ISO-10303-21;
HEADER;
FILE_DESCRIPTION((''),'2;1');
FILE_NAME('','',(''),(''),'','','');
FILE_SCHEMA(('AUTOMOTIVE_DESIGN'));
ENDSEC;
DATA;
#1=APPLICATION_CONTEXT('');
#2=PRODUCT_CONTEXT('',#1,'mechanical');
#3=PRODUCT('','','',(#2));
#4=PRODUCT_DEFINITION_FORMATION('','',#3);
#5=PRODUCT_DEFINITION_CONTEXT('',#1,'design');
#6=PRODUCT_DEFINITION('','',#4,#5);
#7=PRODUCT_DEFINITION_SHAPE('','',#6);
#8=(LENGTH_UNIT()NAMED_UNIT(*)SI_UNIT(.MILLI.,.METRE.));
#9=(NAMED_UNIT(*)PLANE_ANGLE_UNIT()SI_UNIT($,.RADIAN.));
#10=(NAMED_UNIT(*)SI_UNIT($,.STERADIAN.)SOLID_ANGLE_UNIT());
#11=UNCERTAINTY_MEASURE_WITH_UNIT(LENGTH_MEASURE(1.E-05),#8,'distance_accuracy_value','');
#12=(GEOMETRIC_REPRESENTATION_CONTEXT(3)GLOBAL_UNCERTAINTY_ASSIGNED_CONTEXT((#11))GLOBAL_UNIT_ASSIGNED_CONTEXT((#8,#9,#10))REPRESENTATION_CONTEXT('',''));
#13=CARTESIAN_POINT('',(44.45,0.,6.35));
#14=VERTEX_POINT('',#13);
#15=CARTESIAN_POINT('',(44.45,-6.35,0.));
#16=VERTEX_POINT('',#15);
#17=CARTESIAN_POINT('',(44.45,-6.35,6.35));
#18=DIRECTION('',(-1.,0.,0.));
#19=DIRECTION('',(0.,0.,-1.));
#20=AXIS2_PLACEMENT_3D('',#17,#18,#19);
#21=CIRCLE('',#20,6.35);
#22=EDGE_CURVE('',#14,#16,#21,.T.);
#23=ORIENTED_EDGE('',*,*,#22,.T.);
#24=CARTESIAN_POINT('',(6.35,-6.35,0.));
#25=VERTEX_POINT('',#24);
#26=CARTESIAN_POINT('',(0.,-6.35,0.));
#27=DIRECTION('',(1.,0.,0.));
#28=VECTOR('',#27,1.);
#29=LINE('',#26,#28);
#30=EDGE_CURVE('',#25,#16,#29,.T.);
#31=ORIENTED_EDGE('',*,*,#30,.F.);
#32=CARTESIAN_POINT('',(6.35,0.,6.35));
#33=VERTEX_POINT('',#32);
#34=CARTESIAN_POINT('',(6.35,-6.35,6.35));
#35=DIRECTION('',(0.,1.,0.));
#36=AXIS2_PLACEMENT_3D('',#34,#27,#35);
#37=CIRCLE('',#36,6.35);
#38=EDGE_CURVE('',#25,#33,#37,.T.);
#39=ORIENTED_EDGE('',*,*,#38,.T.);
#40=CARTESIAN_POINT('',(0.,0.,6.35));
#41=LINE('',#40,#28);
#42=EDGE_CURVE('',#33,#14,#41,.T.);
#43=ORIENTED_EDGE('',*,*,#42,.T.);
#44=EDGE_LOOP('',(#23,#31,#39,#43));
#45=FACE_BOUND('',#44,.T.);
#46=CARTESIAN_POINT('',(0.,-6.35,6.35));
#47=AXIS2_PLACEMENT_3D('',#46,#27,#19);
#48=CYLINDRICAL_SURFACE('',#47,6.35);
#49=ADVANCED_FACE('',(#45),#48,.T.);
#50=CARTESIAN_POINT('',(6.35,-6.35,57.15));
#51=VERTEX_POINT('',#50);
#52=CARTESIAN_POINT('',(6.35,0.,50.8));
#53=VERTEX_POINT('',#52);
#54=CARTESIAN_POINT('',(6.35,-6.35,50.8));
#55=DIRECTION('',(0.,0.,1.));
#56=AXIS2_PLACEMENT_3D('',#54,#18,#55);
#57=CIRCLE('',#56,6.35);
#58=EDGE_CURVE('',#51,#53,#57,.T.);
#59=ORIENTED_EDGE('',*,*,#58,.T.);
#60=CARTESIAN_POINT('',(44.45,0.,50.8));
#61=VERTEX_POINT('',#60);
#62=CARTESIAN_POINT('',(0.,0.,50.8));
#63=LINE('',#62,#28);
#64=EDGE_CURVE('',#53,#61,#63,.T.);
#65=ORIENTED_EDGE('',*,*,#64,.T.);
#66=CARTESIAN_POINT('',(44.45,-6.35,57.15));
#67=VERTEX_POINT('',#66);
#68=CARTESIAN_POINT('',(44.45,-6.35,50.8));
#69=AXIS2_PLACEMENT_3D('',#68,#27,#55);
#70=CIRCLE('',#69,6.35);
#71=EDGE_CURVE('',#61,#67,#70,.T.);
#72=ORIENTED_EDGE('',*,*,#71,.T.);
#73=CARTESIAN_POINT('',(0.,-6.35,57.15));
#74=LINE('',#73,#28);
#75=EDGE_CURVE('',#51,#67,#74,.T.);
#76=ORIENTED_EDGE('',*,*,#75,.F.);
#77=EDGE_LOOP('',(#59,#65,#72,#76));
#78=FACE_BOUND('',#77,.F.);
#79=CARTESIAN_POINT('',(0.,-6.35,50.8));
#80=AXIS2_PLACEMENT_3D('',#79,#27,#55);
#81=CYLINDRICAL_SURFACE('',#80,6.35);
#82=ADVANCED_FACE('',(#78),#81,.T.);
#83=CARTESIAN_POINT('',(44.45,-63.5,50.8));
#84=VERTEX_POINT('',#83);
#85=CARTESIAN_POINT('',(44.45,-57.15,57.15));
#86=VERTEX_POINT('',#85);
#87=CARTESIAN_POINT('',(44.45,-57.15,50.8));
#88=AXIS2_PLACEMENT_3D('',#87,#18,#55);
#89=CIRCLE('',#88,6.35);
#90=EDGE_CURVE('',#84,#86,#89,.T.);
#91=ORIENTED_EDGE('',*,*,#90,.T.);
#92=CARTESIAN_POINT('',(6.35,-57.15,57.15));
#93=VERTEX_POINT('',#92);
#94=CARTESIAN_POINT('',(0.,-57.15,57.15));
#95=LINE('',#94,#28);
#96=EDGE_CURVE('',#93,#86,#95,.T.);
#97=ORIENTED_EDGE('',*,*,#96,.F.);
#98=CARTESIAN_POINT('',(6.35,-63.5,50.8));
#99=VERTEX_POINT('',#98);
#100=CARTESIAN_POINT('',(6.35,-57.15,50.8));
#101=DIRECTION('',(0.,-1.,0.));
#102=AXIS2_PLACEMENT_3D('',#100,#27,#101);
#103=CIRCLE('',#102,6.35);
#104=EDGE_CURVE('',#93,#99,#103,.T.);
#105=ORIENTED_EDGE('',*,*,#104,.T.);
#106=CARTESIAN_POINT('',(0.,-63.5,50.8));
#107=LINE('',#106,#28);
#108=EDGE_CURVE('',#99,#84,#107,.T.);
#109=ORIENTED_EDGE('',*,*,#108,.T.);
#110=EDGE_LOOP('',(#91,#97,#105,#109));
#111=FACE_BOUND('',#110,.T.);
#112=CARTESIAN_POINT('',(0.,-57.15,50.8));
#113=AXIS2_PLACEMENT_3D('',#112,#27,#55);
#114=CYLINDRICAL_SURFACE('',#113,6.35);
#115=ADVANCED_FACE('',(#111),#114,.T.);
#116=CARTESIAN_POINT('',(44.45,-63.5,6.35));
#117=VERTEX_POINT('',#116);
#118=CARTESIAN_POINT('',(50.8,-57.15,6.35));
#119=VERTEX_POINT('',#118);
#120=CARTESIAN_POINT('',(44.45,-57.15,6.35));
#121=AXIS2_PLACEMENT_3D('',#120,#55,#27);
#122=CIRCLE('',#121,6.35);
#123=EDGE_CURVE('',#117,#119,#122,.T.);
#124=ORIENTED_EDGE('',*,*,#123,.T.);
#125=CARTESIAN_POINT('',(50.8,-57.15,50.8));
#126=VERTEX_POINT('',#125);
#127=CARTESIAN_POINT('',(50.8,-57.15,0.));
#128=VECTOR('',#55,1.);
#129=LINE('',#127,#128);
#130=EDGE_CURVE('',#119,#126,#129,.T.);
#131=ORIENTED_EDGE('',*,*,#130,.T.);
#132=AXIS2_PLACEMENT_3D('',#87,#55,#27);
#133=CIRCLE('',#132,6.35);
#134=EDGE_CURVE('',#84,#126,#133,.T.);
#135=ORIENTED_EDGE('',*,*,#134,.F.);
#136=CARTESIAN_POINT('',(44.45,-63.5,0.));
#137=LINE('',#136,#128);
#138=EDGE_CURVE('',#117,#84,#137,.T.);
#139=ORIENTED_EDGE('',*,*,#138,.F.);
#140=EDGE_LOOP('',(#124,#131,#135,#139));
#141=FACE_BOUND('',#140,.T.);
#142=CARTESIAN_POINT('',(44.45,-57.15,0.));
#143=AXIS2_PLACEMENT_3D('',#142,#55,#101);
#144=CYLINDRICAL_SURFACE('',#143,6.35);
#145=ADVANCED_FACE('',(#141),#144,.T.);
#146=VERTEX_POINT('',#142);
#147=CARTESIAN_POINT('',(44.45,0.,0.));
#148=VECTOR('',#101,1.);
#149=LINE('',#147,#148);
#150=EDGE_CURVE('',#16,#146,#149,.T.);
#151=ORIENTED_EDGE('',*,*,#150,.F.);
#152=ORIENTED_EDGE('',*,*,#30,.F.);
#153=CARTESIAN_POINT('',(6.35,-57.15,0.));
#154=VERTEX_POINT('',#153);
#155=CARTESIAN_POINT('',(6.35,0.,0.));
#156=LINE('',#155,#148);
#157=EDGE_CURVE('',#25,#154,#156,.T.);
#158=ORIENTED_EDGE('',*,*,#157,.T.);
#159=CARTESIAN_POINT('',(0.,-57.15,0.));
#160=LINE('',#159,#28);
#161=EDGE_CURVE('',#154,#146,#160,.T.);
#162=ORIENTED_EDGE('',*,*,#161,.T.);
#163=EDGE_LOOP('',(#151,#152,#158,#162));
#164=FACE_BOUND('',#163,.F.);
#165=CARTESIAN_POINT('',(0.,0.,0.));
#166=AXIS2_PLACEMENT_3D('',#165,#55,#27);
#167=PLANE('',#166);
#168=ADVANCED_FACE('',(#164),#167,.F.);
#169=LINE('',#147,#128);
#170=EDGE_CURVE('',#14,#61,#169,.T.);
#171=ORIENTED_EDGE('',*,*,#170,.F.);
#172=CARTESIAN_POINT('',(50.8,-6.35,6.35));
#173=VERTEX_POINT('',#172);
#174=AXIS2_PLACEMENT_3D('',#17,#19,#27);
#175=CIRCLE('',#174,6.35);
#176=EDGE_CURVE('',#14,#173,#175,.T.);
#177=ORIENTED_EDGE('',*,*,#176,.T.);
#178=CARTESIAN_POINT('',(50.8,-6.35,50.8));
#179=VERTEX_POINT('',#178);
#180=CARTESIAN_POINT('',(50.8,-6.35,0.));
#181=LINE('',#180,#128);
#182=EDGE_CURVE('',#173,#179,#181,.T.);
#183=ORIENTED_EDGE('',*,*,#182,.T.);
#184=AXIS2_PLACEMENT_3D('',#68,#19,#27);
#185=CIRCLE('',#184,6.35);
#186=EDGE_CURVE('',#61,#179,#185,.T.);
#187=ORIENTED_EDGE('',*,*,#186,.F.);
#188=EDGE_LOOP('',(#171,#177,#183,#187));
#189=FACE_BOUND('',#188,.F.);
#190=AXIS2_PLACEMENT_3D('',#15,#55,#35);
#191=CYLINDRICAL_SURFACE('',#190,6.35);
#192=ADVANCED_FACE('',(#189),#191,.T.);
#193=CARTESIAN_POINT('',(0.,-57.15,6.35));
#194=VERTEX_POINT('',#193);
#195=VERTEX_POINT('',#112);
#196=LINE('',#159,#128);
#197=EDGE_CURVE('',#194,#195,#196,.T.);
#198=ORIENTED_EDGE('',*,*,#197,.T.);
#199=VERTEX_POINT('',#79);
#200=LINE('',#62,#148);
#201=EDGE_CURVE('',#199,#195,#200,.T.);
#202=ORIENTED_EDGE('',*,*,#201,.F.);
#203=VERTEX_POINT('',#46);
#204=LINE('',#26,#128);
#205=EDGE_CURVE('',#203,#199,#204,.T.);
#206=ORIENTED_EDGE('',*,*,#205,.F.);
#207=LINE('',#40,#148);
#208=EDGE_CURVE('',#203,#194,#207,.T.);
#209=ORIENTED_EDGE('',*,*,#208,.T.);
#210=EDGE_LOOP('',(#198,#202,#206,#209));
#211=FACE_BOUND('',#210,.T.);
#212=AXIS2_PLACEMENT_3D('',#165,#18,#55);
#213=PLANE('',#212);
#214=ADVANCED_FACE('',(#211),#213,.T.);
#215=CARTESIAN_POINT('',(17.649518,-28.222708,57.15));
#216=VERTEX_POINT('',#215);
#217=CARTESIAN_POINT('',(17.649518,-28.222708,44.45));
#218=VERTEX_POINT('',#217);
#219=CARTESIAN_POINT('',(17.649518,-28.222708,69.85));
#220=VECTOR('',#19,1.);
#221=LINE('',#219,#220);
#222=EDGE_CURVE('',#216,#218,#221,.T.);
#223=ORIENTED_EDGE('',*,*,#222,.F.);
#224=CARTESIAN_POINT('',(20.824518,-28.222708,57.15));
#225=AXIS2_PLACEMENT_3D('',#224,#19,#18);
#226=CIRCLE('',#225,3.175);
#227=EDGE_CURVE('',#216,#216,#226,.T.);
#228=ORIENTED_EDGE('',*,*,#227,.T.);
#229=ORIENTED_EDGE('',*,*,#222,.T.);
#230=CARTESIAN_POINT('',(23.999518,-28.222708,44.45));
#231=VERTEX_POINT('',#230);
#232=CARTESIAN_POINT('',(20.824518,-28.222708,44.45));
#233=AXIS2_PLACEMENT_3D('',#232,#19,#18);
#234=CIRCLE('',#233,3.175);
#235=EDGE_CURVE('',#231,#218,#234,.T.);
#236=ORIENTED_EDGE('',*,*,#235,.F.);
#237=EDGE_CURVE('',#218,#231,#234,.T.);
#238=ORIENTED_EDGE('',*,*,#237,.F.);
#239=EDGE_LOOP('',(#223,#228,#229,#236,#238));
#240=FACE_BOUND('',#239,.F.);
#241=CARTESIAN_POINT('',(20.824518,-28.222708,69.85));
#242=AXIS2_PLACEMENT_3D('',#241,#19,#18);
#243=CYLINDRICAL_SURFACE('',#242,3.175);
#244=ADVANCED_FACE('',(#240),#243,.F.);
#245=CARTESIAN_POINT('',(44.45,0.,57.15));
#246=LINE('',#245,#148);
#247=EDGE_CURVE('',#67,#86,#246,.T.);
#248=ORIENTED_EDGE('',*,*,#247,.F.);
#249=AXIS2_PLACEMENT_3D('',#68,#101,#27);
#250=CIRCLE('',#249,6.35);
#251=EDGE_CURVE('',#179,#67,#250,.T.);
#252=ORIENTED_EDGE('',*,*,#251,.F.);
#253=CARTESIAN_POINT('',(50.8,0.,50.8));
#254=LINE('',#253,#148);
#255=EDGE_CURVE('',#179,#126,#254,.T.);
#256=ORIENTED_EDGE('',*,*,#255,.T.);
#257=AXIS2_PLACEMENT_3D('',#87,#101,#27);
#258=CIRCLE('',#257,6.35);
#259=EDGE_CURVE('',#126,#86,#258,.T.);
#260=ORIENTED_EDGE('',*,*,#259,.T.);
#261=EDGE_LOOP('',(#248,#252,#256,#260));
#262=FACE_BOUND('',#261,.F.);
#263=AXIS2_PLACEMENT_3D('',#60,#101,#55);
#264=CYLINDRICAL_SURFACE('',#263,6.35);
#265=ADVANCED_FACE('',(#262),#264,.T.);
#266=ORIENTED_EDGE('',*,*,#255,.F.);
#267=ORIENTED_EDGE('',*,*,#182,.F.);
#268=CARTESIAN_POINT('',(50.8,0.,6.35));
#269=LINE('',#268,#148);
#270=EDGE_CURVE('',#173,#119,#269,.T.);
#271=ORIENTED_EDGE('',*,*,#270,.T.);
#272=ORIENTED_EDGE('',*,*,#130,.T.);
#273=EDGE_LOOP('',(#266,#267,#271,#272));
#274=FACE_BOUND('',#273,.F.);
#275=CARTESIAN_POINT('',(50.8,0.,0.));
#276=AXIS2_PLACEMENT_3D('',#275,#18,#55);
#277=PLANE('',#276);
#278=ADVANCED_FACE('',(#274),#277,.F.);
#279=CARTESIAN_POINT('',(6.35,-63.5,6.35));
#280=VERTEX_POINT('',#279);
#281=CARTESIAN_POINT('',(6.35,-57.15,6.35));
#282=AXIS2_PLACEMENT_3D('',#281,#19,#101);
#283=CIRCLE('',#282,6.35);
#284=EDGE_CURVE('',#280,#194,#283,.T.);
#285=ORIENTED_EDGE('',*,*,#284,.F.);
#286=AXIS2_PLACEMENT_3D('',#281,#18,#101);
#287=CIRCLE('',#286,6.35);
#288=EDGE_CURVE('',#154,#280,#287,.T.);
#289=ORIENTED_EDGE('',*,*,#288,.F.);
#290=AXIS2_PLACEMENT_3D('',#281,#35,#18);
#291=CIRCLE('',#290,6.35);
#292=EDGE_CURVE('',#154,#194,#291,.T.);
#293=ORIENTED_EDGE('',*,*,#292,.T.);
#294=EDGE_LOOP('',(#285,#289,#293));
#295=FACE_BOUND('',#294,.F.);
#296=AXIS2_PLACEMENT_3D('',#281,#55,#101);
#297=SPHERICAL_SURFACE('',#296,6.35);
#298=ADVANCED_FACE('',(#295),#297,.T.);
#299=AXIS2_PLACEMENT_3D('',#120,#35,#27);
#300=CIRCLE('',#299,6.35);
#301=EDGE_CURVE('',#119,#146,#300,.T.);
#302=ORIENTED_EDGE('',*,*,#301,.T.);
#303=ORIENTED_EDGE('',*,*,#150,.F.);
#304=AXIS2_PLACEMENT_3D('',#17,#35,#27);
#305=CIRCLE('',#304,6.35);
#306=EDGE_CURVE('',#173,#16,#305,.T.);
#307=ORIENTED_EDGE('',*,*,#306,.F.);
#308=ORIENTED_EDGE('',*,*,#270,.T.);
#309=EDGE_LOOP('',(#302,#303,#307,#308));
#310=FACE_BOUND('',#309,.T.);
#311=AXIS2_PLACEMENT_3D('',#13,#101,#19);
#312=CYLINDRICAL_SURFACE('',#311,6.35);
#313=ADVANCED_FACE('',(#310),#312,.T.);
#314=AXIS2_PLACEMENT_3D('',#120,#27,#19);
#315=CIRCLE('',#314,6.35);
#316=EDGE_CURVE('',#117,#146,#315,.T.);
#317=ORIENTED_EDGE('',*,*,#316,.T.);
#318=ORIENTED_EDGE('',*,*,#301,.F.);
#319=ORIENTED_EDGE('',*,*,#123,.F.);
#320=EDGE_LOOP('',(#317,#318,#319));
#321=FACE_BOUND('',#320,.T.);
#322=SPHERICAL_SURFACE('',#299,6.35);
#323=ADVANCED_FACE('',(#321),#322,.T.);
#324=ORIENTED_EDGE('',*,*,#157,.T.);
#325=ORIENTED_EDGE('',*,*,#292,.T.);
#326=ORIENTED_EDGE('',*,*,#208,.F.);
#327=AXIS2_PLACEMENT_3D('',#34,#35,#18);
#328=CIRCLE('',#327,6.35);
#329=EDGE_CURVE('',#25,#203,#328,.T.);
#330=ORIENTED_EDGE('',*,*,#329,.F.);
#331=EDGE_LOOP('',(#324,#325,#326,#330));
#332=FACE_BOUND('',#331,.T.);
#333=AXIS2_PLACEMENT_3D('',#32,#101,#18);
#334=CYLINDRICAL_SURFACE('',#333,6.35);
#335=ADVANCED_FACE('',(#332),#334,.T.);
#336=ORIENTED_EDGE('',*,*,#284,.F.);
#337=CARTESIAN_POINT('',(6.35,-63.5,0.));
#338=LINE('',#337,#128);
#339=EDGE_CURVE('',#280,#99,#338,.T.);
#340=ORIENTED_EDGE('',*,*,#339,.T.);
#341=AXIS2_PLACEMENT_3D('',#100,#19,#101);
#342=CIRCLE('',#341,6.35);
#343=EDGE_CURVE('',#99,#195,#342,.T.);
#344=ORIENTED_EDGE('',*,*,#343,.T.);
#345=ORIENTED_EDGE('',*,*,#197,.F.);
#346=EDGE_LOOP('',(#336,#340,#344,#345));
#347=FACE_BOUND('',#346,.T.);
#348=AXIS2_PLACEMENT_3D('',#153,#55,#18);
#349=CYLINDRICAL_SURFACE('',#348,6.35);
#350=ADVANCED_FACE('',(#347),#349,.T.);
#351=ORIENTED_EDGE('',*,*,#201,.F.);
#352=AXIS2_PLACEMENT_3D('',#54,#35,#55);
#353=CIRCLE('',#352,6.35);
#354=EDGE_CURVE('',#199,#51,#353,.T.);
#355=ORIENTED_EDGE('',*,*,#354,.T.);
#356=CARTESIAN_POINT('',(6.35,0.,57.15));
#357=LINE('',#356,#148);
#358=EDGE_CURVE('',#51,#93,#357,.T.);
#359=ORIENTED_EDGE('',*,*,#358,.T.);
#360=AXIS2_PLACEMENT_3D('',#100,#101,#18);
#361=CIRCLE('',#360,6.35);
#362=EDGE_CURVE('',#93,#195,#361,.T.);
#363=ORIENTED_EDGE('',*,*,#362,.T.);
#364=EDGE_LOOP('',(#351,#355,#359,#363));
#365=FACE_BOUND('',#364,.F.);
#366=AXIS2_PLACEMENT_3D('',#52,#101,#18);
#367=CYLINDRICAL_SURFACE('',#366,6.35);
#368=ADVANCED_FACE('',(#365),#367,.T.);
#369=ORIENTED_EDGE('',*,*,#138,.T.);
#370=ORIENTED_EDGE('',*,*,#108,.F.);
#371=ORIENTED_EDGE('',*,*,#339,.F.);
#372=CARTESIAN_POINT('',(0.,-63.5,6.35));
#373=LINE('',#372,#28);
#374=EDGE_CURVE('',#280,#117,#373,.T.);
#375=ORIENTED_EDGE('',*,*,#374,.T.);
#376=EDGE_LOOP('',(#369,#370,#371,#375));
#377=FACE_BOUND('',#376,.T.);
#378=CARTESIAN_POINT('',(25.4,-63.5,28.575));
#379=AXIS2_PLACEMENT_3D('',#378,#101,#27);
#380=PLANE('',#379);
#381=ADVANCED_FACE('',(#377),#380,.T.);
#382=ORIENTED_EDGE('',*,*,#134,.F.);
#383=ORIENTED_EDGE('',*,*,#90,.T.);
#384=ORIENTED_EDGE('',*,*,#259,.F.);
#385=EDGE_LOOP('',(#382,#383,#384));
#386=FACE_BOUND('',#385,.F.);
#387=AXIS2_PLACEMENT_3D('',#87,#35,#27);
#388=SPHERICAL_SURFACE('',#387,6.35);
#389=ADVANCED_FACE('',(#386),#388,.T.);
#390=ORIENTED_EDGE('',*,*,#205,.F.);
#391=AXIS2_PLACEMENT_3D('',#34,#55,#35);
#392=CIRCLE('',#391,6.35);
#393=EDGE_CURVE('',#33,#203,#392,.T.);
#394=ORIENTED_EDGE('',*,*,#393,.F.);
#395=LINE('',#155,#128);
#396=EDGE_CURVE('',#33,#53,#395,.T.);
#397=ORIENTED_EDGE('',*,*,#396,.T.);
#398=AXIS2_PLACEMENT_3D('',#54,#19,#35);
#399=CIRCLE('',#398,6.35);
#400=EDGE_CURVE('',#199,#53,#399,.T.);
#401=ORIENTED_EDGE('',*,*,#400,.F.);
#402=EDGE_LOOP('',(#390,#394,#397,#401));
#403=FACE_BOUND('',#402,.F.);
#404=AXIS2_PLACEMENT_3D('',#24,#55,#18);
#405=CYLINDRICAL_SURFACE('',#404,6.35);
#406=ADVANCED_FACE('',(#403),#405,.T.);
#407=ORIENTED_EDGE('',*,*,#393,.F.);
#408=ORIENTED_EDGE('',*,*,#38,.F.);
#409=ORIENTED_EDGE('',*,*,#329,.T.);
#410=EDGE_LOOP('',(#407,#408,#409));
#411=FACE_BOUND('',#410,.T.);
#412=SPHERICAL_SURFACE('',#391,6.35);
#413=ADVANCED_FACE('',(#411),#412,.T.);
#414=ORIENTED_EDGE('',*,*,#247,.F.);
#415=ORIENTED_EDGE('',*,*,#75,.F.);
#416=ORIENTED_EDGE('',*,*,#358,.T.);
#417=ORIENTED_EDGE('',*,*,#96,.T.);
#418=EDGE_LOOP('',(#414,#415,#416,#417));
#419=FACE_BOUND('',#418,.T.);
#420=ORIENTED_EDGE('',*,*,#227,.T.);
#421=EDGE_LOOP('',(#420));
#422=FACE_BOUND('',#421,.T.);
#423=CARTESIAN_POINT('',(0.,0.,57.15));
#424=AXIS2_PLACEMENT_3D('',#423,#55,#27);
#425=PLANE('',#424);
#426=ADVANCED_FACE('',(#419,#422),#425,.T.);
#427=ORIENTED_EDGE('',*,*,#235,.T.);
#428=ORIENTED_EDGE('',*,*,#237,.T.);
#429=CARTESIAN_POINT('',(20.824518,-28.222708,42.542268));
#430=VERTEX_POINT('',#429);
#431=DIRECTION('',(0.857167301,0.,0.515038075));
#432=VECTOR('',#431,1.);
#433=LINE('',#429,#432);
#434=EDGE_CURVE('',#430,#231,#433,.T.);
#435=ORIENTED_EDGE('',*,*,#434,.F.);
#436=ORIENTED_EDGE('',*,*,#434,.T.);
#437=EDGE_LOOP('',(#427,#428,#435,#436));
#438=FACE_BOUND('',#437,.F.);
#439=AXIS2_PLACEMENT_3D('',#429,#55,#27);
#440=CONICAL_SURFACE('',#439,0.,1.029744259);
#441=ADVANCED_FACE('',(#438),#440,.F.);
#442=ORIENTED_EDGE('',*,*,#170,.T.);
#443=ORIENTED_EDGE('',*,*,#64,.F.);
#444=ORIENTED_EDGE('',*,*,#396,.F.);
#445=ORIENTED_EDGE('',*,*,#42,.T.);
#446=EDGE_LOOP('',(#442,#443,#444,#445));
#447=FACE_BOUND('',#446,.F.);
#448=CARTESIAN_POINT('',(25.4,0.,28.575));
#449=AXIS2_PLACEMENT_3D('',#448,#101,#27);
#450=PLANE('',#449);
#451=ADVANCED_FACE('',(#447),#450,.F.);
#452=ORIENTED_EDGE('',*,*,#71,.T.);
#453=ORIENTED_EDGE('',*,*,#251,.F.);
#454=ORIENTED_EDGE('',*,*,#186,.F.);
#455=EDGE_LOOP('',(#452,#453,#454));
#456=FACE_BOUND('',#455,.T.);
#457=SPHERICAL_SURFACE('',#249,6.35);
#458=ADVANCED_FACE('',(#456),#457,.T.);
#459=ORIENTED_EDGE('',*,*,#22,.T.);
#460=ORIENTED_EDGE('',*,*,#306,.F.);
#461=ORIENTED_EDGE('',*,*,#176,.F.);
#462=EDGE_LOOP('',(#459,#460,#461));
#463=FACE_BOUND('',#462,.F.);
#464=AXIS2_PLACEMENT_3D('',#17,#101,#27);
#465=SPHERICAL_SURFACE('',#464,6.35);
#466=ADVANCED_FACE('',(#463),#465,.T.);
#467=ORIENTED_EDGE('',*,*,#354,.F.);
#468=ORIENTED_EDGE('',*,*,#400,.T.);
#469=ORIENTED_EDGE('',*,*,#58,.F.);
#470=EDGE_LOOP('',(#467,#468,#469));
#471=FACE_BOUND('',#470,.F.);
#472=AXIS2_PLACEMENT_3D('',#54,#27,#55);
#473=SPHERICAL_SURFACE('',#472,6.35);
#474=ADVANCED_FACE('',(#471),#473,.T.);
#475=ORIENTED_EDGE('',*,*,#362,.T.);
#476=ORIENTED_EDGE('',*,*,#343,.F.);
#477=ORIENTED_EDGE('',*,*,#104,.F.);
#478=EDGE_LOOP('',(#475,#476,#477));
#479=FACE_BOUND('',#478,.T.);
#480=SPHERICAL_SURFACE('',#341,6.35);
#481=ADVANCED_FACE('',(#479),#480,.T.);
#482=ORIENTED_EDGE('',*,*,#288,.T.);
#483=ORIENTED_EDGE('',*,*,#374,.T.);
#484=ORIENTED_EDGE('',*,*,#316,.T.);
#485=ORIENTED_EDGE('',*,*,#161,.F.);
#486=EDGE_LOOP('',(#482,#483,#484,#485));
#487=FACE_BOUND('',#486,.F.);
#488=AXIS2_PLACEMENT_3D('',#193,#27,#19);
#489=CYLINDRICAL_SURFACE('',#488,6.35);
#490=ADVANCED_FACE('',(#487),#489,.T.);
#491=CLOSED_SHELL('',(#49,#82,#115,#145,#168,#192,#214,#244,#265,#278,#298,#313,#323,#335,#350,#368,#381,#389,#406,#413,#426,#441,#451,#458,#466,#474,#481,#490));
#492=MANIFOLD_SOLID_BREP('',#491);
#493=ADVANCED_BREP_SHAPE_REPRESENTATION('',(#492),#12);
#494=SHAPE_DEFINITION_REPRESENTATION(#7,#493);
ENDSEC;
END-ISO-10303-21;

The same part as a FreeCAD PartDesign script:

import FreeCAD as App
import Part
import Sketcher
Q = App.Units.Quantity


def edges_at(feature, points):
    """Names of the edges that pass closest to the given points."""
    edges = feature.Shape.Edges
    near = lambda p: min(range(len(edges)), key=lambda i: edges[i].distToShape(Part.Vertex(*p))[0])
    return sorted({f"Edge{near(p) + 1}" for p in points})


def add_polygon(sketch, points):
    """Adds a closed chain of lines whose ends are joined by coincident constraints."""
    first, n = sketch.GeometryCount, len(points)
    for a, b in zip(points, points[1:] + points[:1]):
        sketch.addGeometry(Part.LineSegment(App.Vector(*a, 0), App.Vector(*b, 0)), False)
    for i in range(n):
        sketch.addConstraint(Sketcher.Constraint("Coincident", first + i, 2, first + (i + 1) % n, 1))

doc = App.newDocument("Part")
body = doc.addObject("PartDesign::Body", "Body")

sketch1 = body.newObject("Sketcher::SketchObject", "Sketch")
sketch1.AttachmentSupport = (doc.getObject("XZ_Plane"), [""])
sketch1.MapMode = "FlatFace"
add_polygon(sketch1, [(0, 57), (0, 0), (51, 0), (51, 57)])
sketch1.addConstraint([
    Sketcher.Constraint("Vertical", 0),
    Sketcher.Constraint("Horizontal", 1),
    Sketcher.Constraint("Vertical", 2),
    Sketcher.Constraint("Horizontal", 3),
    Sketcher.Constraint("Coincident", 0, 2, -1, 1),
    Sketcher.Constraint("DistanceX", 1, 1, 1, 2, Q("2 in")),
    Sketcher.Constraint("DistanceY", 0, 2, 0, 1, Q("2.25 in")),
])
pad1 = body.newObject("PartDesign::Pad", "Pad")
pad1.Profile = sketch1
pad1.Length = Q("2.5 in")

sketch2 = body.newObject("Sketcher::SketchObject", "Sketch001")
sketch2.AttachmentSupport = (doc.getObject("XY_Plane"), [""])
sketch2.MapMode = "FlatFace"
sketch2.AttachmentOffset = App.Placement(App.Vector(0, 0, 2.25 * 25.4), App.Rotation())
sketch2.addGeometry(Part.Circle(App.Vector(20.8, -28.2, 0), App.Vector(0, 0, 1), 3.2), False)
sketch2.addConstraint([
    Sketcher.Constraint("Diameter", 0, Q("0.25 in")),
    Sketcher.Constraint("DistanceX", -1, 1, 0, 3, Q("20.824518 mm")),
    Sketcher.Constraint("DistanceY", 0, 3, -1, 1, Q("28.222708 mm")),
])
doc.recompute()
hole = body.newObject("PartDesign::Hole", "Hole")
hole.Profile = sketch2
hole.ThreadType = "None"
hole.Diameter = Q("0.25 in")
hole.DepthType = "Dimension"
hole.Depth = Q("0.5 in")
hole.DrillPoint = "Angled"
hole.DrillPointAngle = 118
doc.recompute()

fillet = body.newObject("PartDesign::Fillet", "Fillet")
fillet.Base = (hole, edges_at(hole, [
    (50.8, -31.75, 0),
    (50.8, -31.75, 57.15),
    (50.8, 0, 28.575),
    (50.8, -63.5, 28.575),
    (0, -63.5, 28.575),
    (25.4, -63.5, 0),
    (25.4, -63.5, 57.15),
    (25.4, 0, 57.15),
    (0, -31.75, 57.15),
    (0, 0, 28.575),
    (25.4, 0, 0),
    (0, -31.75, 0),
]))
fillet.Radius = Q("0.25 in")

doc.recompute()
